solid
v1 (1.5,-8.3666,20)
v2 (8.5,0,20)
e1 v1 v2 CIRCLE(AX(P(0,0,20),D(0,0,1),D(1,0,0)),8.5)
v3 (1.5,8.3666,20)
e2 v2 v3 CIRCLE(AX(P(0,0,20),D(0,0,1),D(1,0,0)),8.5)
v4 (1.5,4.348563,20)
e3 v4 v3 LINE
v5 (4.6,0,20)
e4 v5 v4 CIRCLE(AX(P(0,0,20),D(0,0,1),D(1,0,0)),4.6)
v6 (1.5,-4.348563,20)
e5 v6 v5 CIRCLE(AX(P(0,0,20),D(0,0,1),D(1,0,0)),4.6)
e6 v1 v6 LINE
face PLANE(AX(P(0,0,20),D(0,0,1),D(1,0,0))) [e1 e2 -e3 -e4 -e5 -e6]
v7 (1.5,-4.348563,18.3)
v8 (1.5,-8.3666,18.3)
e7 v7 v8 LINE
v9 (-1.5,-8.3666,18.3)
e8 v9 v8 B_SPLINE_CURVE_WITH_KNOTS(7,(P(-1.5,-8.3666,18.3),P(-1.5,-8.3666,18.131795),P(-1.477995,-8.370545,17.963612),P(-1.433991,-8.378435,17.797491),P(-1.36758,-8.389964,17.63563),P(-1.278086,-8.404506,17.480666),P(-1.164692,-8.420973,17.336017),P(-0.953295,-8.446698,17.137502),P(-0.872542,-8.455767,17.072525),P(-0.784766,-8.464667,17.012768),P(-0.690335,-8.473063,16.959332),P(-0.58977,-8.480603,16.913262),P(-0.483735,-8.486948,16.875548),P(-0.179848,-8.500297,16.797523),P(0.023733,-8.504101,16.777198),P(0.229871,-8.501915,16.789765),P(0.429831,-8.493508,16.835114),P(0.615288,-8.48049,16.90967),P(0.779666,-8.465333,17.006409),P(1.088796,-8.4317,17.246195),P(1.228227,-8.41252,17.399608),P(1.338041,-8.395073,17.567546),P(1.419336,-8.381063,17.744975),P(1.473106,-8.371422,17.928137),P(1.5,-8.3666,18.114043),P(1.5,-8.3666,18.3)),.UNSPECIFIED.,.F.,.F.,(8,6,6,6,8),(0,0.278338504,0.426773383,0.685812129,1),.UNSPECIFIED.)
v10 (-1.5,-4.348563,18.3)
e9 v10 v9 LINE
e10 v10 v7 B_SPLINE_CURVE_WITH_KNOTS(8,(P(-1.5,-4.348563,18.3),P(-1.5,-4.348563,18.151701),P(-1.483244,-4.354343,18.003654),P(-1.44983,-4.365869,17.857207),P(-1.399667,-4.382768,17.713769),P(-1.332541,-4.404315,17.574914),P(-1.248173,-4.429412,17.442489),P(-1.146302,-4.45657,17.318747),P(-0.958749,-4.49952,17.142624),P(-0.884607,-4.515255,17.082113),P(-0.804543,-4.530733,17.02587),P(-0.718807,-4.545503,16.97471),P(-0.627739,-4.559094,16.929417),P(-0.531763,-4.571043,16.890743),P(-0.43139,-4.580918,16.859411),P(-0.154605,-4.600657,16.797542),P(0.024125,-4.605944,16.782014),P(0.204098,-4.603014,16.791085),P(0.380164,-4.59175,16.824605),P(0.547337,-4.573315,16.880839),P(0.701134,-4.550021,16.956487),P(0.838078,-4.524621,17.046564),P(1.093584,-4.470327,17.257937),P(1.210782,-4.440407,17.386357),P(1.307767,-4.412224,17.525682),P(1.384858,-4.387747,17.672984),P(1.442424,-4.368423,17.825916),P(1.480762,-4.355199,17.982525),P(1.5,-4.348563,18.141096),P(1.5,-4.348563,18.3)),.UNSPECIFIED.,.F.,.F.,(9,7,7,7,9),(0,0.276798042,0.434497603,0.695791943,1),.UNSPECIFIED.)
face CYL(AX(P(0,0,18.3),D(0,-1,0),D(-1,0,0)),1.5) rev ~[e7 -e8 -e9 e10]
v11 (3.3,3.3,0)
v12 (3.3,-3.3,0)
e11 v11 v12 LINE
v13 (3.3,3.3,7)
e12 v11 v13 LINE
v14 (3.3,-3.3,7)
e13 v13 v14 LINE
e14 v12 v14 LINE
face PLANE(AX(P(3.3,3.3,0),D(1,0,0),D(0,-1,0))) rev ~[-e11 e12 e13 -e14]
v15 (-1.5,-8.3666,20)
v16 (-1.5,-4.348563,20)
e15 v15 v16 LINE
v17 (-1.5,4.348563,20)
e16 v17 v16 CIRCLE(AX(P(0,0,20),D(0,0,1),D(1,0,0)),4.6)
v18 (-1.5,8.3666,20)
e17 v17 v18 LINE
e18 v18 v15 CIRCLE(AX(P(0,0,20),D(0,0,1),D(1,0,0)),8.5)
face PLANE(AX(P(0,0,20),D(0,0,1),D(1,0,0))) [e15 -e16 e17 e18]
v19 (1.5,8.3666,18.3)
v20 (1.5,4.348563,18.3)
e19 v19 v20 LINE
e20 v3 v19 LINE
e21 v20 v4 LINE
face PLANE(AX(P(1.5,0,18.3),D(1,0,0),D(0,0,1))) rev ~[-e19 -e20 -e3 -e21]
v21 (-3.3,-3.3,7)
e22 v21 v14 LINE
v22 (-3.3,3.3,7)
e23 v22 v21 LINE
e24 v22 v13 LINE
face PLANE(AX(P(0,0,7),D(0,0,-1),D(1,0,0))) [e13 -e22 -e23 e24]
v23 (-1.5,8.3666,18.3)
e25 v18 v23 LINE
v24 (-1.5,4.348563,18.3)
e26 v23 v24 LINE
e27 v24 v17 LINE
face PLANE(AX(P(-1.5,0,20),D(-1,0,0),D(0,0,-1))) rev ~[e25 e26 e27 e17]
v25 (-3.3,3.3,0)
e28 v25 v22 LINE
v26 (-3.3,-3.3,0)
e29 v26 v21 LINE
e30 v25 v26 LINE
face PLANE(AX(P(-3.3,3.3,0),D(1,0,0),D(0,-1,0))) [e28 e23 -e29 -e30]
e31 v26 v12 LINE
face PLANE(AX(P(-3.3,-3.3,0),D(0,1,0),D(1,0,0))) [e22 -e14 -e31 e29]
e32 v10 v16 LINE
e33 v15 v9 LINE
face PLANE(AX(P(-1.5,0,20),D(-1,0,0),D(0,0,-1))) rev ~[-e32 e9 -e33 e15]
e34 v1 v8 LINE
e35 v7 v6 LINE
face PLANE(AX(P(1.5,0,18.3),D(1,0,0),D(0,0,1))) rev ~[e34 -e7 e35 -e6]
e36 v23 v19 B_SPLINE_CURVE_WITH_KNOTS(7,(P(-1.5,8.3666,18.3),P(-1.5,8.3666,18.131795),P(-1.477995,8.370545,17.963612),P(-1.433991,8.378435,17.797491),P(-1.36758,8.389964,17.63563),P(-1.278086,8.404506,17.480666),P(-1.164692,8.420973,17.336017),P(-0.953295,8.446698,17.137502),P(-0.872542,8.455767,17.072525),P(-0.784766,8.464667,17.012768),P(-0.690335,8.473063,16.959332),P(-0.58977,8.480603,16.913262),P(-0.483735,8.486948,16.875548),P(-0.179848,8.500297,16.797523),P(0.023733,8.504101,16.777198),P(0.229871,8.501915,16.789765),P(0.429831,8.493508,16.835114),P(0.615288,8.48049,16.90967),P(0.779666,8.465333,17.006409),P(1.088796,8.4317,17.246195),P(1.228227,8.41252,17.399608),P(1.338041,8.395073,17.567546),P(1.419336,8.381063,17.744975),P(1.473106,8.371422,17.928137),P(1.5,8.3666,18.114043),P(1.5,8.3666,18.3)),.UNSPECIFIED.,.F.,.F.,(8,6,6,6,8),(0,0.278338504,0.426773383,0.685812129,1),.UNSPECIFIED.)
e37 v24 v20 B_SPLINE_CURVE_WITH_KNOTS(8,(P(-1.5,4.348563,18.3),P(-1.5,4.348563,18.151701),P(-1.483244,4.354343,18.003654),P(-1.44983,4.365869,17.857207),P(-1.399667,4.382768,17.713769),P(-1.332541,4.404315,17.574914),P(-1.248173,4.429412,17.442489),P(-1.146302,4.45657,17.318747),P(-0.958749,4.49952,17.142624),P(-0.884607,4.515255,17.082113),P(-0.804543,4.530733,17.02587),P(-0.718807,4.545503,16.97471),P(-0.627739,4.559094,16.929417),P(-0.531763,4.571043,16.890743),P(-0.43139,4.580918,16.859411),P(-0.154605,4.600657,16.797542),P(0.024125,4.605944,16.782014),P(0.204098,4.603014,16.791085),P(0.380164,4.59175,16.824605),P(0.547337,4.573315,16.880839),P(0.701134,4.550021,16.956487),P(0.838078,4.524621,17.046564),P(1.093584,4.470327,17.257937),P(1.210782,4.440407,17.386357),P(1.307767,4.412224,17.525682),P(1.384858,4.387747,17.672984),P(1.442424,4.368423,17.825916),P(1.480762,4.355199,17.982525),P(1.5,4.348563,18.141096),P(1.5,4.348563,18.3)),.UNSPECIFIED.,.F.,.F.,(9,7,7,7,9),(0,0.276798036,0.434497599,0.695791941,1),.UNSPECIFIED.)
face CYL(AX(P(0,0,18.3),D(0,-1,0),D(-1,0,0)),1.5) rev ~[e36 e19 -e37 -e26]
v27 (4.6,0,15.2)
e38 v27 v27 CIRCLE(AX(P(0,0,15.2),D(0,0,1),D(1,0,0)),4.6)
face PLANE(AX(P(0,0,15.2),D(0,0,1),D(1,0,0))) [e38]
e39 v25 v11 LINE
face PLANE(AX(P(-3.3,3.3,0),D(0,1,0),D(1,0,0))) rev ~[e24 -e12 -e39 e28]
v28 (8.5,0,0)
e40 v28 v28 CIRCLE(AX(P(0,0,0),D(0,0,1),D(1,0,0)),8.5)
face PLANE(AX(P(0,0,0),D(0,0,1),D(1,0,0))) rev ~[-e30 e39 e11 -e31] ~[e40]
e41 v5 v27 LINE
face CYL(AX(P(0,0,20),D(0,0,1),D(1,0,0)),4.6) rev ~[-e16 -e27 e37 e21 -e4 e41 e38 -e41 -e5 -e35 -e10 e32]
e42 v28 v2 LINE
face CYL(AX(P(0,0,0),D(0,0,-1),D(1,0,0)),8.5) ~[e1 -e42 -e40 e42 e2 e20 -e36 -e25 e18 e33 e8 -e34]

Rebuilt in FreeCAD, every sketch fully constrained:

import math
import FreeCAD as App
import Part
import Sketcher

V = App.Vector
Q = App.Units.Quantity

doc = App.newDocument("Part")
body = doc.addObject("PartDesign::Body", "Body")

sketch1 = body.newObject("Sketcher::SketchObject", "Sketch")
sketch1.AttachmentSupport = (doc.getObject("XY_Plane"), [""])
sketch1.MapMode = "FlatFace"
sketch1.addGeometry(Part.Circle(V(0, 0, 0), V(0, 0, 1), 8), False)
sketch1.addConstraint([
    Sketcher.Constraint("Coincident", 0, 3, -1, 1),
    Sketcher.Constraint("Diameter", 0, Q("17 mm")),
])
pad1 = body.newObject("PartDesign::Pad", "Pad")
pad1.Profile = sketch1
pad1.Length = 20

sketch2 = body.newObject("Sketcher::SketchObject", "Sketch001")
sketch2.AttachmentSupport = (doc.getObject("XY_Plane"), [""])
sketch2.MapMode = "FlatFace"
sketch2.AttachmentOffset = App.Placement(V(0, 0, 20), App.Rotation())
sketch2.addGeometry(Part.Circle(V(0, 0, 0), V(0, 0, 1), 4.6), False)
sketch2.addConstraint([
    Sketcher.Constraint("Coincident", 0, 3, -1, 1),
    Sketcher.Constraint("Diameter", 0, Q("9.2 mm")),
])
pocket1 = body.newObject("PartDesign::Pocket", "Pocket")
pocket1.Profile = sketch2
pocket1.Length = 4.8

sketch3 = body.newObject("Sketcher::SketchObject", "Sketch002")
sketch3.AttachmentSupport = (doc.getObject("XZ_Plane"), [""])
sketch3.MapMode = "FlatFace"
sketch3.addGeometry([
    Part.LineSegment(V(-1.5, 20, 0), V(-1.5, 18.3, 0)),
    Part.ArcOfCircle(Part.Circle(V(0, 18.3, 0), V(0, 0, 1), 1.5), math.radians(180), math.radians(360)),
    Part.LineSegment(V(1.5, 18.3, 0), V(1.5, 20, 0)),
    Part.LineSegment(V(1.5, 20, 0), V(-1.5, 20, 0)),
], False)
sketch3.addConstraint([
    Sketcher.Constraint("Tangent", 0, 2, 1, 1),
    Sketcher.Constraint("Tangent", 1, 2, 2, 1),
    Sketcher.Constraint("Coincident", 2, 2, 3, 1),
    Sketcher.Constraint("Coincident", 3, 2, 0, 1),
    Sketcher.Constraint("Vertical", 0),
    Sketcher.Constraint("Vertical", 2),
    Sketcher.Constraint("Horizontal", 3),
    Sketcher.Constraint("PointOnObject", 1, 3, -2),
    Sketcher.Constraint("Radius", 1, Q("1.5 mm")),
    Sketcher.Constraint("DistanceY", 0, 2, 0, 1, Q("1.7 mm")),
    Sketcher.Constraint("DistanceY", -1, 1, 2, 2, Q("20 mm")),
])
pocket2 = body.newObject("PartDesign::Pocket", "Pocket001")
pocket2.Profile = sketch3
pocket2.Length = 25
pocket2.Midplane = True

sketch4 = body.newObject("Sketcher::SketchObject", "Sketch003")
sketch4.AttachmentSupport = (doc.getObject("XY_Plane"), [""])
sketch4.MapMode = "FlatFace"
sketch4.addGeometry([
    Part.LineSegment(V(-3, -3, 0), V(-3, 3, 0)),
    Part.LineSegment(V(-3, 3, 0), V(3, 3, 0)),
    Part.LineSegment(V(3, 3, 0), V(3, -3, 0)),
    Part.LineSegment(V(3, -3, 0), V(-3, -3, 0)),
], False)
sketch4.addConstraint([
    Sketcher.Constraint("Coincident", 0, 2, 1, 1),
    Sketcher.Constraint("Coincident", 1, 2, 2, 1),
    Sketcher.Constraint("Coincident", 2, 2, 3, 1),
    Sketcher.Constraint("Coincident", 3, 2, 0, 1),
    Sketcher.Constraint("Vertical", 0),
    Sketcher.Constraint("Horizontal", 1),
    Sketcher.Constraint("Vertical", 2),
    Sketcher.Constraint("Horizontal", 3),
    Sketcher.Constraint("Symmetric", 0, 2, 2, 2, -1, 1),
    Sketcher.Constraint("Equal", 3, 0),
    Sketcher.Constraint("DistanceX", 1, 1, 1, 2, Q("6.6 mm")),
])
pocket3 = body.newObject("PartDesign::Pocket", "Pocket002")
pocket3.Profile = sketch4
pocket3.Length = 7
pocket3.Reversed = True

doc.recompute()
